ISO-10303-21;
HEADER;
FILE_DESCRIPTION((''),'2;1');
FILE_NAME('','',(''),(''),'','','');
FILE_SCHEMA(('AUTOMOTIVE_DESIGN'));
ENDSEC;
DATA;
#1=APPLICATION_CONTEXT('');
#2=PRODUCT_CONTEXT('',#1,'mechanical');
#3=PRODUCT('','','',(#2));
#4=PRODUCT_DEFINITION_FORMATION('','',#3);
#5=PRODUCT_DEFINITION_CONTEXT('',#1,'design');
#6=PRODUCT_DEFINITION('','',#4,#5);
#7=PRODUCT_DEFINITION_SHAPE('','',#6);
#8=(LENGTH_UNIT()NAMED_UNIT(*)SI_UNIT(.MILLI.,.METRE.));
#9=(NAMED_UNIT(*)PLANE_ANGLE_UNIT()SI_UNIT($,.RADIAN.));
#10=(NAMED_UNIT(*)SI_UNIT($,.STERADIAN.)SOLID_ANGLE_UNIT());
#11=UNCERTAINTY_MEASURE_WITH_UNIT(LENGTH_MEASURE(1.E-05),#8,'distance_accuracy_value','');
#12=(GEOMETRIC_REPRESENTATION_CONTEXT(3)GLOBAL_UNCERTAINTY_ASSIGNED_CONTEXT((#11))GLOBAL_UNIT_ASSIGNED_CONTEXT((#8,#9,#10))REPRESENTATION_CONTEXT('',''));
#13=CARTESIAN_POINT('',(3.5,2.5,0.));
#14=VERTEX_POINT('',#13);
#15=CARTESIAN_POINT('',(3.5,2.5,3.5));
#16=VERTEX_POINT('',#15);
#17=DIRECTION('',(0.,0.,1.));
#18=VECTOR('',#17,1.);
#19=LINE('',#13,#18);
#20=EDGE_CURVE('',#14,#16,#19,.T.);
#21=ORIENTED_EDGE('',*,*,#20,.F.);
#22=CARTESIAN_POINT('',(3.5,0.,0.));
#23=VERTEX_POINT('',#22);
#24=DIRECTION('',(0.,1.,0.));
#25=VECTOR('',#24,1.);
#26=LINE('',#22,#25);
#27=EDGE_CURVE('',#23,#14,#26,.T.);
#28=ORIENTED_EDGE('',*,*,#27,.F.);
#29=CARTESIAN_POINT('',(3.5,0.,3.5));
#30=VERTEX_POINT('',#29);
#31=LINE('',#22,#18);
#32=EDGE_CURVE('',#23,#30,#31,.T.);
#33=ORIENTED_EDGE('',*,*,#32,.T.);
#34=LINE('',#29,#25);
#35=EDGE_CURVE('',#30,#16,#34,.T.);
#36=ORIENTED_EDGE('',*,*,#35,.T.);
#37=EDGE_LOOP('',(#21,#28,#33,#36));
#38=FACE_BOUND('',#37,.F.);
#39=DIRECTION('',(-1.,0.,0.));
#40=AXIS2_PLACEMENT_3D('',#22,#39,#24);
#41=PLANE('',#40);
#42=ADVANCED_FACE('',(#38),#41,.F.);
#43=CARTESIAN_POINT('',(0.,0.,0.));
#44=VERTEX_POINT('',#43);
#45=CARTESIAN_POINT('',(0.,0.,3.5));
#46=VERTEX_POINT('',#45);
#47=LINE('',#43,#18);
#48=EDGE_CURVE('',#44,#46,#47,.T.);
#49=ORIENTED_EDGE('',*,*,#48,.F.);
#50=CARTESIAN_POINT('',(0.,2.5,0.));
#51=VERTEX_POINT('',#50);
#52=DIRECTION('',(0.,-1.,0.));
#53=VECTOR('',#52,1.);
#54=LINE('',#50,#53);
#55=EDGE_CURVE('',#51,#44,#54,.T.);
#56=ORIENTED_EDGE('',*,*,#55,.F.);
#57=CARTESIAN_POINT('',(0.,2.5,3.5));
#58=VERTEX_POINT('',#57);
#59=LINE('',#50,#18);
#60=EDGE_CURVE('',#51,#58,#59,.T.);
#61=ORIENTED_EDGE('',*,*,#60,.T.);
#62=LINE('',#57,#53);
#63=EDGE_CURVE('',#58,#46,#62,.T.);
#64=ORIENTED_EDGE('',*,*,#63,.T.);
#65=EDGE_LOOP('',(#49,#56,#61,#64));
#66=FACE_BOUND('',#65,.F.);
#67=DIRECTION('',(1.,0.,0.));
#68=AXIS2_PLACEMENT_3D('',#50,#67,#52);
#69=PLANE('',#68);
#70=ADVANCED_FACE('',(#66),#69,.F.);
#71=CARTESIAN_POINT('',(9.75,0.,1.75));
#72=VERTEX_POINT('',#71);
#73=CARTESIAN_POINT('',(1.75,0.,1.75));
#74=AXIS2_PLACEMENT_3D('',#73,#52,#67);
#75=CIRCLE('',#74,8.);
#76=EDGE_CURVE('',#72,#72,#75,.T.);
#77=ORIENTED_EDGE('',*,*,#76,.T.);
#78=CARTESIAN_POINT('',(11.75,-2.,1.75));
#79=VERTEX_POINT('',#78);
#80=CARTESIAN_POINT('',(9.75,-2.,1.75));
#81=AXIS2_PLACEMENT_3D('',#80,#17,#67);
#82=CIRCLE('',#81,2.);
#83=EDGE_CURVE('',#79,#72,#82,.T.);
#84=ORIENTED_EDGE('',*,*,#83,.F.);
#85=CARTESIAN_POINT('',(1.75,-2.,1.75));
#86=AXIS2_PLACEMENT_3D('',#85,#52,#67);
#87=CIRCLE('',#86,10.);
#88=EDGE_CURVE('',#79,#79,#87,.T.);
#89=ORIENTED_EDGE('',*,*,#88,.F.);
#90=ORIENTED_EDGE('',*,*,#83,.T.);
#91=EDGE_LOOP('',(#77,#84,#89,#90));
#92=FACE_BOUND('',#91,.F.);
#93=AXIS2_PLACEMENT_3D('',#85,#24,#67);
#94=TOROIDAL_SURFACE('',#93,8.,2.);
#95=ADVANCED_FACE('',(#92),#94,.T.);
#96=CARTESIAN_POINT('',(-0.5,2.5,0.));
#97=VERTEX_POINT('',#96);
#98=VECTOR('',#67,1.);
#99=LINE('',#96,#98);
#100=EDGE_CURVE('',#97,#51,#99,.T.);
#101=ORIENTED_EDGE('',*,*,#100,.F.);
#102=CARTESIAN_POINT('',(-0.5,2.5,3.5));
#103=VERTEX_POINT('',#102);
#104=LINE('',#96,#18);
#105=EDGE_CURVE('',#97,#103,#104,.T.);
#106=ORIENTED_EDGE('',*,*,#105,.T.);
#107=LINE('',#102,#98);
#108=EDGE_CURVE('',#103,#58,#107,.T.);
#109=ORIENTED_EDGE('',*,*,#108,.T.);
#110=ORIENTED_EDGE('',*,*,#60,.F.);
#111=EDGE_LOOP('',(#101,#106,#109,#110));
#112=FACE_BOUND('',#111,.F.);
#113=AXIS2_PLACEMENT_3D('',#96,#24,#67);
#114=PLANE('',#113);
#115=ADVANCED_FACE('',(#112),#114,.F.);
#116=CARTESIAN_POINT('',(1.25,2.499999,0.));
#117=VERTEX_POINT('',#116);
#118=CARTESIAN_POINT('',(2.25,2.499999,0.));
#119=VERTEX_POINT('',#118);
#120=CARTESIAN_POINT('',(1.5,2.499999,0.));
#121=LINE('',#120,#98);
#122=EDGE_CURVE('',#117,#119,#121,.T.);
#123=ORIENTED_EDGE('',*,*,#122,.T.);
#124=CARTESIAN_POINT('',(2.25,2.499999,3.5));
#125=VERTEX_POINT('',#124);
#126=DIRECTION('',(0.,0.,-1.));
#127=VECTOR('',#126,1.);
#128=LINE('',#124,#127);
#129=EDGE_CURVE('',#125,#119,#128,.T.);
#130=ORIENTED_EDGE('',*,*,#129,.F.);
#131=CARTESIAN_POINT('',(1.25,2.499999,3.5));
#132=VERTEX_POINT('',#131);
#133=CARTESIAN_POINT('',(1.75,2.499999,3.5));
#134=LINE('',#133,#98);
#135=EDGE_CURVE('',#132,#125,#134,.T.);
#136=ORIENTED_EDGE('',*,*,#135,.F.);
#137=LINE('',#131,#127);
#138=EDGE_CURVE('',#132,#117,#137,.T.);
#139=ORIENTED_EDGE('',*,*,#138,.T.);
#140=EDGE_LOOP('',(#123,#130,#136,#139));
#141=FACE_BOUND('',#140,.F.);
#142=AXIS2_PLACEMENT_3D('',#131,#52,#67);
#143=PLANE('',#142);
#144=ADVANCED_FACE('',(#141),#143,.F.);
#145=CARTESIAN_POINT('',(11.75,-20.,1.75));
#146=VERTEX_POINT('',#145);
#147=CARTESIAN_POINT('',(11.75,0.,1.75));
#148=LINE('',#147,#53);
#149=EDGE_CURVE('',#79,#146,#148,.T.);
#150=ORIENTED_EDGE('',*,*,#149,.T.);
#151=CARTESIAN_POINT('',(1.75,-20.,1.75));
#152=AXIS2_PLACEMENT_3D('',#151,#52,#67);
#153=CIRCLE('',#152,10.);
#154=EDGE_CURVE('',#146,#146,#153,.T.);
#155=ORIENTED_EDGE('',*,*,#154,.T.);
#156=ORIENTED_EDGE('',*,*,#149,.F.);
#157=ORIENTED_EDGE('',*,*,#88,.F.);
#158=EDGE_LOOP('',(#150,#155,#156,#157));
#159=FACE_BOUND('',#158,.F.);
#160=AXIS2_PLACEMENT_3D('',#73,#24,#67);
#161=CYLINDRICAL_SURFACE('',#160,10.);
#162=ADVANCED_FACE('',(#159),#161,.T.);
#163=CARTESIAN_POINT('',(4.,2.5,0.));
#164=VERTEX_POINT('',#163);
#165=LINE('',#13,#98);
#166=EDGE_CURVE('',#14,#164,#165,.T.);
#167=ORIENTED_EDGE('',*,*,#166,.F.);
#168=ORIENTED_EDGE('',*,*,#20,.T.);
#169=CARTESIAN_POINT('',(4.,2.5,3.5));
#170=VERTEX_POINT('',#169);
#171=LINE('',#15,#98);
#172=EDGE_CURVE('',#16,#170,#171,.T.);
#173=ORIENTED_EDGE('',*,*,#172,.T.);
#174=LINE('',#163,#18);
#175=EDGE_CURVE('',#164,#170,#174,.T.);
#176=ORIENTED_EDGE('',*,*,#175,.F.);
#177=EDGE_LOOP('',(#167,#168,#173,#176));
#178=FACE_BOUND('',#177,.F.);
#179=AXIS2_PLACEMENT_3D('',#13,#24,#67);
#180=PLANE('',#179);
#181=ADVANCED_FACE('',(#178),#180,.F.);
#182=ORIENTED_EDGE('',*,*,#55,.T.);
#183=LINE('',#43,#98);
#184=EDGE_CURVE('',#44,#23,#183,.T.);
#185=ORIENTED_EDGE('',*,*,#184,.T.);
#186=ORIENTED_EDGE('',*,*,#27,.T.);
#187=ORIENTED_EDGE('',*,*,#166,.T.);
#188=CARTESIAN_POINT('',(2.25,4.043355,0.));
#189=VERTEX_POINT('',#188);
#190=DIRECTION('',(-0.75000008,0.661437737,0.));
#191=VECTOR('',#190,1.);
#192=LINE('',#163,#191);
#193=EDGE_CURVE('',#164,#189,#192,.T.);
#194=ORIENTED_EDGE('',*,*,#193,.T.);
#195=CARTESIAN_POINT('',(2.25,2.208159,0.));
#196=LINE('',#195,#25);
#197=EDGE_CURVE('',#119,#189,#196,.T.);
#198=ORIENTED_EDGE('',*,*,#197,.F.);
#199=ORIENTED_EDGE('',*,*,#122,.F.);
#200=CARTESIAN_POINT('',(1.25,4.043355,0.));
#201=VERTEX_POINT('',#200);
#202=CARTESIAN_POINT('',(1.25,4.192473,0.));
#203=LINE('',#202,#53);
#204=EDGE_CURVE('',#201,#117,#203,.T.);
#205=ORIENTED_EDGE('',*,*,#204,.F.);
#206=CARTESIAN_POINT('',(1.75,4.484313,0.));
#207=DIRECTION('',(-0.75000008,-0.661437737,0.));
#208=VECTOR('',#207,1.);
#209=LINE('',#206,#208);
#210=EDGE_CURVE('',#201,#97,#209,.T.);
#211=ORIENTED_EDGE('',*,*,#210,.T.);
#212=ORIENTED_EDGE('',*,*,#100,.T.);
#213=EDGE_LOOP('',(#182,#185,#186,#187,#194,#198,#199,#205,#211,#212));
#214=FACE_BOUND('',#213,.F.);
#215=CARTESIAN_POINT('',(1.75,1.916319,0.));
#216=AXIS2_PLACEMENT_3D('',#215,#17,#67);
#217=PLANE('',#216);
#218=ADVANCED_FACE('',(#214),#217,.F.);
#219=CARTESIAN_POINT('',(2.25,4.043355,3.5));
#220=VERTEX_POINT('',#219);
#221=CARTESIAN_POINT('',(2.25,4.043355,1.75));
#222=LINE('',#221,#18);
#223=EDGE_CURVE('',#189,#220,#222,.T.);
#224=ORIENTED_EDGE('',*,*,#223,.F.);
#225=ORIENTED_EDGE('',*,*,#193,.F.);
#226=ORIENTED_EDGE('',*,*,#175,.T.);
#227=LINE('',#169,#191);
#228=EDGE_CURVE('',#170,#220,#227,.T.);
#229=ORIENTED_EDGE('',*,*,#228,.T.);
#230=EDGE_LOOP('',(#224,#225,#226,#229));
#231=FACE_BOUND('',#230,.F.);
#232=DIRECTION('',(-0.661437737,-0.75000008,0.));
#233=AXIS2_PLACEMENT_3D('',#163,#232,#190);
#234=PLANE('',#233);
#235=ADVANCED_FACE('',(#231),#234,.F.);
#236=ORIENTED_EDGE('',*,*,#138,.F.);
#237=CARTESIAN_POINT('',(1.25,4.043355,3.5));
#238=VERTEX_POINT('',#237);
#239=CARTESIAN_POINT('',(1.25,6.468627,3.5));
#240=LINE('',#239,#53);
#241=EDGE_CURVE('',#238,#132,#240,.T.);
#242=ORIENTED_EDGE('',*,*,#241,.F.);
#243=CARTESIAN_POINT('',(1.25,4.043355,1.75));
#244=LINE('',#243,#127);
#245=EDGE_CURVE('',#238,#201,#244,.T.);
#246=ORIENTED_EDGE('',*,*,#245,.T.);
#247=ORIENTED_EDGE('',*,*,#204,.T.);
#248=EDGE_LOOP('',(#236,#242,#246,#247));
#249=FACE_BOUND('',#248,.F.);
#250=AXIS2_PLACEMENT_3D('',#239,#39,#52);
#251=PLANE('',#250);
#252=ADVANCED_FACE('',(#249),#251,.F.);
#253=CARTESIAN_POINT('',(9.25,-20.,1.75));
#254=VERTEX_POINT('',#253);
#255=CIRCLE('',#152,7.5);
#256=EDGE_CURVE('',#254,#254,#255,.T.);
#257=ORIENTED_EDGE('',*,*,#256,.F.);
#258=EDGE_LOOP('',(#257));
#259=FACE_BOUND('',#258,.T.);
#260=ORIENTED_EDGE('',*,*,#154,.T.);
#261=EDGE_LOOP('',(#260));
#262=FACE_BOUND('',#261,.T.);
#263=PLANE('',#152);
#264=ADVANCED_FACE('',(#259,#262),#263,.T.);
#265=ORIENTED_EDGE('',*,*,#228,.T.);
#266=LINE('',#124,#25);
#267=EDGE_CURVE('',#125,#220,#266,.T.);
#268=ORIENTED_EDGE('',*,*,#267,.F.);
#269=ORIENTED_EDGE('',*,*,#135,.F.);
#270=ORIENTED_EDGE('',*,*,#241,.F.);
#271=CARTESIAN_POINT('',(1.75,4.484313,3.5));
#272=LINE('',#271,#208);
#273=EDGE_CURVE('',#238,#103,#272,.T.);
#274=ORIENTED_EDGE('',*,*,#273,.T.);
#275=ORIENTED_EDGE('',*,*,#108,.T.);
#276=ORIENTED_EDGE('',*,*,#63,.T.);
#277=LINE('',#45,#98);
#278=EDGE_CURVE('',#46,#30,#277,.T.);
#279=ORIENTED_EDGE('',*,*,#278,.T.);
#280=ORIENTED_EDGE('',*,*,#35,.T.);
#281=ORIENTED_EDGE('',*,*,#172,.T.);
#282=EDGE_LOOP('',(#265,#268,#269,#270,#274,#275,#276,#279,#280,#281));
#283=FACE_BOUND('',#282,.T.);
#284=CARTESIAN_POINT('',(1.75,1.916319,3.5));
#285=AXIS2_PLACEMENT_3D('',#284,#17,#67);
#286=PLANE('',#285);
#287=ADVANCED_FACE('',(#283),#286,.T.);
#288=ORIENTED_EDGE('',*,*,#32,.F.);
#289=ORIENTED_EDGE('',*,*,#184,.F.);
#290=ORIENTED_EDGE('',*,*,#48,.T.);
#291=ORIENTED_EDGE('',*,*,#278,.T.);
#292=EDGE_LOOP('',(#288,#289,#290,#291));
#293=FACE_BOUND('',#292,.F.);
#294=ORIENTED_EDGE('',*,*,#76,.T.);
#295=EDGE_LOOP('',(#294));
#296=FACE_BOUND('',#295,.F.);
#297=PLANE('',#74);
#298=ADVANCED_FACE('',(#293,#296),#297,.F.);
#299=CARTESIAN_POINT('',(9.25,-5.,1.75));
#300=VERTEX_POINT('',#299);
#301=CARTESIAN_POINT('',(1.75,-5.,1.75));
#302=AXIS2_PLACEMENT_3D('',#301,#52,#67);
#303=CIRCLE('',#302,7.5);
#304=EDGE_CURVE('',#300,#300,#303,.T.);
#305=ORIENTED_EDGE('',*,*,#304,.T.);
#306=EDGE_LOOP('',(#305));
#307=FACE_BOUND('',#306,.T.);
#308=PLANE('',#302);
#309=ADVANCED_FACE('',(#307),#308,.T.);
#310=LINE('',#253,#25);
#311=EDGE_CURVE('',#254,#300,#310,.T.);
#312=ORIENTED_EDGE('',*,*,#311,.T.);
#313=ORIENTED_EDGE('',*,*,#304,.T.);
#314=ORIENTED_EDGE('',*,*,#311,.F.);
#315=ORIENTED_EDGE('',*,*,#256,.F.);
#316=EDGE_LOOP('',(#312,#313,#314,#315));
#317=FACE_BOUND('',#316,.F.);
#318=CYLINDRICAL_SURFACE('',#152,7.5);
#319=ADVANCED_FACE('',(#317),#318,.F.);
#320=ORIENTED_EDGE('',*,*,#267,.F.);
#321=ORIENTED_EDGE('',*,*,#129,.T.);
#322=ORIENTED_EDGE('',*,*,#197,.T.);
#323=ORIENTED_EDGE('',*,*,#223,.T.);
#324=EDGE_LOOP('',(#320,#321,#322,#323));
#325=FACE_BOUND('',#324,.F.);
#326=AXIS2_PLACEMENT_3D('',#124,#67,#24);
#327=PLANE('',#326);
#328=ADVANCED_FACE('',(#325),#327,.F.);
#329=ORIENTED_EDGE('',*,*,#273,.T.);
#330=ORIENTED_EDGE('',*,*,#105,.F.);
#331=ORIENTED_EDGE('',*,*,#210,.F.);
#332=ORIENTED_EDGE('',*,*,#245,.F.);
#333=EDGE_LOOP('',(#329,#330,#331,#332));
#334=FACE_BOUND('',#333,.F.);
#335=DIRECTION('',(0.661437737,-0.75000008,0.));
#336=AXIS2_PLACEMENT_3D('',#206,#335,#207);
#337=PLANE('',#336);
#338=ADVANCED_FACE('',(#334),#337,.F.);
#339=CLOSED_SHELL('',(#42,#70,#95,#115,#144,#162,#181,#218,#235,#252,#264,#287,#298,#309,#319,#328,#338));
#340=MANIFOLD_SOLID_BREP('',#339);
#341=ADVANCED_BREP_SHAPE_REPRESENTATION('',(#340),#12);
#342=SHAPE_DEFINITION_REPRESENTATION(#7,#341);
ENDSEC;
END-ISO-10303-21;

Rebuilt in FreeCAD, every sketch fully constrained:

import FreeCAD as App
import Part
import Sketcher

V = App.Vector
Q = App.Units.Quantity


def edges_at(feature, points):
    """Names of the edges that pass closest to the given points."""
    edges = feature.Shape.Edges
    near = lambda p: min(range(len(edges)), key=lambda i: edges[i].distToShape(Part.Vertex(*p))[0])
    return sorted({f"Edge{near(p) + 1}" for p in points})

doc = App.newDocument("Part")
body = doc.addObject("PartDesign::Body", "Body")

sketch1 = doc.addObject("Sketcher::SketchObject", "Sketch")
body.addObject(sketch1)
sketch1.AttachmentSupport = (doc.XY_Plane, [""])
sketch1.MapMode = "FlatFace"
sketch1.addGeometry([
    Part.LineSegment(V(0, 2.5, 0), V(0, 0, 0)),
    Part.LineSegment(V(0, 0, 0), V(3.5, 0, 0)),
    Part.LineSegment(V(3.5, 0, 0), V(3.5, 2.5, 0)),
    Part.LineSegment(V(3.5, 2.5, 0), V(4, 2.5, 0)),
    Part.LineSegment(V(4, 2.5, 0), V(1.8, 4.5, 0)),
    Part.LineSegment(V(1.8, 4.5, 0), V(-0.5, 2.5, 0)),
    Part.LineSegment(V(-0.5, 2.5, 0), V(0, 2.5, 0)),
], False)
sketch1.addConstraint([
    Sketcher.Constraint("Coincident", 0, 2, 1, 1),
    Sketcher.Constraint("Coincident", 1, 2, 2, 1),
    Sketcher.Constraint("Coincident", 2, 2, 3, 1),
    Sketcher.Constraint("Coincident", 3, 2, 4, 1),
    Sketcher.Constraint("Coincident", 4, 2, 5, 1),
    Sketcher.Constraint("Coincident", 5, 2, 6, 1),
    Sketcher.Constraint("Coincident", 6, 2, 0, 1),
    Sketcher.Constraint("Vertical", 0),
    Sketcher.Constraint("Horizontal", 1),
    Sketcher.Constraint("Vertical", 2),
    Sketcher.Constraint("Horizontal", 3),
    Sketcher.Constraint("Horizontal", 6),
    Sketcher.Constraint("Coincident", 0, 2, -1, 1),
    Sketcher.Constraint("Horizontal", 3, 2, 5, 2),
    Sketcher.Constraint("Equal", 3, 6),
    Sketcher.Constraint("Equal", 4, 5),
    Sketcher.Constraint("Distance", 4, Q("3 mm")),
    Sketcher.Constraint("DistanceX", 1, 1, 1, 2, Q("3.5 mm")),
    Sketcher.Constraint("DistanceX", 3, 1, 3, 2, Q("0.5 mm")),
    Sketcher.Constraint("DistanceY", 0, 2, 0, 1, Q("2.5 mm")),
])
pad1 = doc.addObject("PartDesign::Pad", "Pad")
body.addObject(pad1)
pad1.Profile = sketch1
pad1.Length = 3.5

sketch2 = doc.addObject("Sketcher::SketchObject", "Sketch001")
body.addObject(sketch2)
sketch2.AttachmentSupport = (doc.XY_Plane, [""])
sketch2.MapMode = "FlatFace"
sketch2.AttachmentOffset = App.Placement(V(0, 0, 3.5), App.Rotation())
sketch2.addGeometry([
    Part.LineSegment(V(1.2, 2.5, 0), V(2.2, 2.5, 0)),
    Part.LineSegment(V(2.2, 2.5, 0), V(2.2, 6.5, 0)),
    Part.LineSegment(V(2.2, 6.5, 0), V(1.2, 6.5, 0)),
    Part.LineSegment(V(1.2, 6.5, 0), V(1.2, 2.5, 0)),
], False)
sketch2.addConstraint([
    Sketcher.Constraint("Coincident", 0, 2, 1, 1),
    Sketcher.Constraint("Coincident", 1, 2, 2, 1),
    Sketcher.Constraint("Coincident", 2, 2, 3, 1),
    Sketcher.Constraint("Coincident", 3, 2, 0, 1),
    Sketcher.Constraint("Horizontal", 0),
    Sketcher.Constraint("Vertical", 1),
    Sketcher.Constraint("Horizontal", 2),
    Sketcher.Constraint("Vertical", 3),
    Sketcher.Constraint("DistanceX", 0, 1, 0, 2, Q("1 mm")),
    Sketcher.Constraint("DistanceY", -1, 1, 0, 2, Q("2.499999 mm")),
    Sketcher.Constraint("DistanceX", -1, 1, 0, 2, Q("2.25 mm")),
    Sketcher.Constraint("DistanceY", 1, 1, 1, 2, Q("3.968627 mm")),
])
pocket1 = doc.addObject("PartDesign::Pocket", "Pocket")
body.addObject(pocket1)
pocket1.Profile = sketch2
pocket1.Length = 25

sketch3 = doc.addObject("Sketcher::SketchObject", "Sketch002")
body.addObject(sketch3)
sketch3.AttachmentSupport = (doc.XZ_Plane, [""])
sketch3.MapMode = "FlatFace"
sketch3.addGeometry(Part.Circle(V(2, 2, 0), V(0, 0, 1), 10), False)
sketch3.addConstraint([
    Sketcher.Constraint("Diameter", 0, Q("20 mm")),
    Sketcher.Constraint("DistanceX", -1, 1, 0, 3, Q("1.75 mm")),
    Sketcher.Constraint("DistanceY", -1, 1, 0, 3, Q("1.75 mm")),
])
pad2 = doc.addObject("PartDesign::Pad", "Pad001")
body.addObject(pad2)
pad2.Profile = sketch3
pad2.Length = 20
doc.recompute()

fillet = doc.addObject("PartDesign::Fillet", "Fillet")
body.addObject(fillet)
fillet.Base = (pad2, edges_at(pad2, [(-8.25, 0, 1.75)]))
fillet.Radius = 2

sketch4 = doc.addObject("Sketcher::SketchObject", "Sketch003")
body.addObject(sketch4)
sketch4.AttachmentSupport = (doc.XZ_Plane, [""])
sketch4.MapMode = "FlatFace"
sketch4.AttachmentOffset = App.Placement(V(0, 0, 20), App.Rotation())
sketch4.addGeometry(Part.Circle(V(2, 2, 0), V(0, 0, 1), 8), False)
sketch4.addConstraint([
    Sketcher.Constraint("Diameter", 0, Q("15 mm")),
    Sketcher.Constraint("DistanceX", -1, 1, 0, 3, Q("1.75 mm")),
    Sketcher.Constraint("DistanceY", -1, 1, 0, 3, Q("1.75 mm")),
])
pocket2 = doc.addObject("PartDesign::Pocket", "Pocket001")
body.addObject(pocket2)
pocket2.Profile = sketch4
pocket2.Length = 15

doc.recompute()
